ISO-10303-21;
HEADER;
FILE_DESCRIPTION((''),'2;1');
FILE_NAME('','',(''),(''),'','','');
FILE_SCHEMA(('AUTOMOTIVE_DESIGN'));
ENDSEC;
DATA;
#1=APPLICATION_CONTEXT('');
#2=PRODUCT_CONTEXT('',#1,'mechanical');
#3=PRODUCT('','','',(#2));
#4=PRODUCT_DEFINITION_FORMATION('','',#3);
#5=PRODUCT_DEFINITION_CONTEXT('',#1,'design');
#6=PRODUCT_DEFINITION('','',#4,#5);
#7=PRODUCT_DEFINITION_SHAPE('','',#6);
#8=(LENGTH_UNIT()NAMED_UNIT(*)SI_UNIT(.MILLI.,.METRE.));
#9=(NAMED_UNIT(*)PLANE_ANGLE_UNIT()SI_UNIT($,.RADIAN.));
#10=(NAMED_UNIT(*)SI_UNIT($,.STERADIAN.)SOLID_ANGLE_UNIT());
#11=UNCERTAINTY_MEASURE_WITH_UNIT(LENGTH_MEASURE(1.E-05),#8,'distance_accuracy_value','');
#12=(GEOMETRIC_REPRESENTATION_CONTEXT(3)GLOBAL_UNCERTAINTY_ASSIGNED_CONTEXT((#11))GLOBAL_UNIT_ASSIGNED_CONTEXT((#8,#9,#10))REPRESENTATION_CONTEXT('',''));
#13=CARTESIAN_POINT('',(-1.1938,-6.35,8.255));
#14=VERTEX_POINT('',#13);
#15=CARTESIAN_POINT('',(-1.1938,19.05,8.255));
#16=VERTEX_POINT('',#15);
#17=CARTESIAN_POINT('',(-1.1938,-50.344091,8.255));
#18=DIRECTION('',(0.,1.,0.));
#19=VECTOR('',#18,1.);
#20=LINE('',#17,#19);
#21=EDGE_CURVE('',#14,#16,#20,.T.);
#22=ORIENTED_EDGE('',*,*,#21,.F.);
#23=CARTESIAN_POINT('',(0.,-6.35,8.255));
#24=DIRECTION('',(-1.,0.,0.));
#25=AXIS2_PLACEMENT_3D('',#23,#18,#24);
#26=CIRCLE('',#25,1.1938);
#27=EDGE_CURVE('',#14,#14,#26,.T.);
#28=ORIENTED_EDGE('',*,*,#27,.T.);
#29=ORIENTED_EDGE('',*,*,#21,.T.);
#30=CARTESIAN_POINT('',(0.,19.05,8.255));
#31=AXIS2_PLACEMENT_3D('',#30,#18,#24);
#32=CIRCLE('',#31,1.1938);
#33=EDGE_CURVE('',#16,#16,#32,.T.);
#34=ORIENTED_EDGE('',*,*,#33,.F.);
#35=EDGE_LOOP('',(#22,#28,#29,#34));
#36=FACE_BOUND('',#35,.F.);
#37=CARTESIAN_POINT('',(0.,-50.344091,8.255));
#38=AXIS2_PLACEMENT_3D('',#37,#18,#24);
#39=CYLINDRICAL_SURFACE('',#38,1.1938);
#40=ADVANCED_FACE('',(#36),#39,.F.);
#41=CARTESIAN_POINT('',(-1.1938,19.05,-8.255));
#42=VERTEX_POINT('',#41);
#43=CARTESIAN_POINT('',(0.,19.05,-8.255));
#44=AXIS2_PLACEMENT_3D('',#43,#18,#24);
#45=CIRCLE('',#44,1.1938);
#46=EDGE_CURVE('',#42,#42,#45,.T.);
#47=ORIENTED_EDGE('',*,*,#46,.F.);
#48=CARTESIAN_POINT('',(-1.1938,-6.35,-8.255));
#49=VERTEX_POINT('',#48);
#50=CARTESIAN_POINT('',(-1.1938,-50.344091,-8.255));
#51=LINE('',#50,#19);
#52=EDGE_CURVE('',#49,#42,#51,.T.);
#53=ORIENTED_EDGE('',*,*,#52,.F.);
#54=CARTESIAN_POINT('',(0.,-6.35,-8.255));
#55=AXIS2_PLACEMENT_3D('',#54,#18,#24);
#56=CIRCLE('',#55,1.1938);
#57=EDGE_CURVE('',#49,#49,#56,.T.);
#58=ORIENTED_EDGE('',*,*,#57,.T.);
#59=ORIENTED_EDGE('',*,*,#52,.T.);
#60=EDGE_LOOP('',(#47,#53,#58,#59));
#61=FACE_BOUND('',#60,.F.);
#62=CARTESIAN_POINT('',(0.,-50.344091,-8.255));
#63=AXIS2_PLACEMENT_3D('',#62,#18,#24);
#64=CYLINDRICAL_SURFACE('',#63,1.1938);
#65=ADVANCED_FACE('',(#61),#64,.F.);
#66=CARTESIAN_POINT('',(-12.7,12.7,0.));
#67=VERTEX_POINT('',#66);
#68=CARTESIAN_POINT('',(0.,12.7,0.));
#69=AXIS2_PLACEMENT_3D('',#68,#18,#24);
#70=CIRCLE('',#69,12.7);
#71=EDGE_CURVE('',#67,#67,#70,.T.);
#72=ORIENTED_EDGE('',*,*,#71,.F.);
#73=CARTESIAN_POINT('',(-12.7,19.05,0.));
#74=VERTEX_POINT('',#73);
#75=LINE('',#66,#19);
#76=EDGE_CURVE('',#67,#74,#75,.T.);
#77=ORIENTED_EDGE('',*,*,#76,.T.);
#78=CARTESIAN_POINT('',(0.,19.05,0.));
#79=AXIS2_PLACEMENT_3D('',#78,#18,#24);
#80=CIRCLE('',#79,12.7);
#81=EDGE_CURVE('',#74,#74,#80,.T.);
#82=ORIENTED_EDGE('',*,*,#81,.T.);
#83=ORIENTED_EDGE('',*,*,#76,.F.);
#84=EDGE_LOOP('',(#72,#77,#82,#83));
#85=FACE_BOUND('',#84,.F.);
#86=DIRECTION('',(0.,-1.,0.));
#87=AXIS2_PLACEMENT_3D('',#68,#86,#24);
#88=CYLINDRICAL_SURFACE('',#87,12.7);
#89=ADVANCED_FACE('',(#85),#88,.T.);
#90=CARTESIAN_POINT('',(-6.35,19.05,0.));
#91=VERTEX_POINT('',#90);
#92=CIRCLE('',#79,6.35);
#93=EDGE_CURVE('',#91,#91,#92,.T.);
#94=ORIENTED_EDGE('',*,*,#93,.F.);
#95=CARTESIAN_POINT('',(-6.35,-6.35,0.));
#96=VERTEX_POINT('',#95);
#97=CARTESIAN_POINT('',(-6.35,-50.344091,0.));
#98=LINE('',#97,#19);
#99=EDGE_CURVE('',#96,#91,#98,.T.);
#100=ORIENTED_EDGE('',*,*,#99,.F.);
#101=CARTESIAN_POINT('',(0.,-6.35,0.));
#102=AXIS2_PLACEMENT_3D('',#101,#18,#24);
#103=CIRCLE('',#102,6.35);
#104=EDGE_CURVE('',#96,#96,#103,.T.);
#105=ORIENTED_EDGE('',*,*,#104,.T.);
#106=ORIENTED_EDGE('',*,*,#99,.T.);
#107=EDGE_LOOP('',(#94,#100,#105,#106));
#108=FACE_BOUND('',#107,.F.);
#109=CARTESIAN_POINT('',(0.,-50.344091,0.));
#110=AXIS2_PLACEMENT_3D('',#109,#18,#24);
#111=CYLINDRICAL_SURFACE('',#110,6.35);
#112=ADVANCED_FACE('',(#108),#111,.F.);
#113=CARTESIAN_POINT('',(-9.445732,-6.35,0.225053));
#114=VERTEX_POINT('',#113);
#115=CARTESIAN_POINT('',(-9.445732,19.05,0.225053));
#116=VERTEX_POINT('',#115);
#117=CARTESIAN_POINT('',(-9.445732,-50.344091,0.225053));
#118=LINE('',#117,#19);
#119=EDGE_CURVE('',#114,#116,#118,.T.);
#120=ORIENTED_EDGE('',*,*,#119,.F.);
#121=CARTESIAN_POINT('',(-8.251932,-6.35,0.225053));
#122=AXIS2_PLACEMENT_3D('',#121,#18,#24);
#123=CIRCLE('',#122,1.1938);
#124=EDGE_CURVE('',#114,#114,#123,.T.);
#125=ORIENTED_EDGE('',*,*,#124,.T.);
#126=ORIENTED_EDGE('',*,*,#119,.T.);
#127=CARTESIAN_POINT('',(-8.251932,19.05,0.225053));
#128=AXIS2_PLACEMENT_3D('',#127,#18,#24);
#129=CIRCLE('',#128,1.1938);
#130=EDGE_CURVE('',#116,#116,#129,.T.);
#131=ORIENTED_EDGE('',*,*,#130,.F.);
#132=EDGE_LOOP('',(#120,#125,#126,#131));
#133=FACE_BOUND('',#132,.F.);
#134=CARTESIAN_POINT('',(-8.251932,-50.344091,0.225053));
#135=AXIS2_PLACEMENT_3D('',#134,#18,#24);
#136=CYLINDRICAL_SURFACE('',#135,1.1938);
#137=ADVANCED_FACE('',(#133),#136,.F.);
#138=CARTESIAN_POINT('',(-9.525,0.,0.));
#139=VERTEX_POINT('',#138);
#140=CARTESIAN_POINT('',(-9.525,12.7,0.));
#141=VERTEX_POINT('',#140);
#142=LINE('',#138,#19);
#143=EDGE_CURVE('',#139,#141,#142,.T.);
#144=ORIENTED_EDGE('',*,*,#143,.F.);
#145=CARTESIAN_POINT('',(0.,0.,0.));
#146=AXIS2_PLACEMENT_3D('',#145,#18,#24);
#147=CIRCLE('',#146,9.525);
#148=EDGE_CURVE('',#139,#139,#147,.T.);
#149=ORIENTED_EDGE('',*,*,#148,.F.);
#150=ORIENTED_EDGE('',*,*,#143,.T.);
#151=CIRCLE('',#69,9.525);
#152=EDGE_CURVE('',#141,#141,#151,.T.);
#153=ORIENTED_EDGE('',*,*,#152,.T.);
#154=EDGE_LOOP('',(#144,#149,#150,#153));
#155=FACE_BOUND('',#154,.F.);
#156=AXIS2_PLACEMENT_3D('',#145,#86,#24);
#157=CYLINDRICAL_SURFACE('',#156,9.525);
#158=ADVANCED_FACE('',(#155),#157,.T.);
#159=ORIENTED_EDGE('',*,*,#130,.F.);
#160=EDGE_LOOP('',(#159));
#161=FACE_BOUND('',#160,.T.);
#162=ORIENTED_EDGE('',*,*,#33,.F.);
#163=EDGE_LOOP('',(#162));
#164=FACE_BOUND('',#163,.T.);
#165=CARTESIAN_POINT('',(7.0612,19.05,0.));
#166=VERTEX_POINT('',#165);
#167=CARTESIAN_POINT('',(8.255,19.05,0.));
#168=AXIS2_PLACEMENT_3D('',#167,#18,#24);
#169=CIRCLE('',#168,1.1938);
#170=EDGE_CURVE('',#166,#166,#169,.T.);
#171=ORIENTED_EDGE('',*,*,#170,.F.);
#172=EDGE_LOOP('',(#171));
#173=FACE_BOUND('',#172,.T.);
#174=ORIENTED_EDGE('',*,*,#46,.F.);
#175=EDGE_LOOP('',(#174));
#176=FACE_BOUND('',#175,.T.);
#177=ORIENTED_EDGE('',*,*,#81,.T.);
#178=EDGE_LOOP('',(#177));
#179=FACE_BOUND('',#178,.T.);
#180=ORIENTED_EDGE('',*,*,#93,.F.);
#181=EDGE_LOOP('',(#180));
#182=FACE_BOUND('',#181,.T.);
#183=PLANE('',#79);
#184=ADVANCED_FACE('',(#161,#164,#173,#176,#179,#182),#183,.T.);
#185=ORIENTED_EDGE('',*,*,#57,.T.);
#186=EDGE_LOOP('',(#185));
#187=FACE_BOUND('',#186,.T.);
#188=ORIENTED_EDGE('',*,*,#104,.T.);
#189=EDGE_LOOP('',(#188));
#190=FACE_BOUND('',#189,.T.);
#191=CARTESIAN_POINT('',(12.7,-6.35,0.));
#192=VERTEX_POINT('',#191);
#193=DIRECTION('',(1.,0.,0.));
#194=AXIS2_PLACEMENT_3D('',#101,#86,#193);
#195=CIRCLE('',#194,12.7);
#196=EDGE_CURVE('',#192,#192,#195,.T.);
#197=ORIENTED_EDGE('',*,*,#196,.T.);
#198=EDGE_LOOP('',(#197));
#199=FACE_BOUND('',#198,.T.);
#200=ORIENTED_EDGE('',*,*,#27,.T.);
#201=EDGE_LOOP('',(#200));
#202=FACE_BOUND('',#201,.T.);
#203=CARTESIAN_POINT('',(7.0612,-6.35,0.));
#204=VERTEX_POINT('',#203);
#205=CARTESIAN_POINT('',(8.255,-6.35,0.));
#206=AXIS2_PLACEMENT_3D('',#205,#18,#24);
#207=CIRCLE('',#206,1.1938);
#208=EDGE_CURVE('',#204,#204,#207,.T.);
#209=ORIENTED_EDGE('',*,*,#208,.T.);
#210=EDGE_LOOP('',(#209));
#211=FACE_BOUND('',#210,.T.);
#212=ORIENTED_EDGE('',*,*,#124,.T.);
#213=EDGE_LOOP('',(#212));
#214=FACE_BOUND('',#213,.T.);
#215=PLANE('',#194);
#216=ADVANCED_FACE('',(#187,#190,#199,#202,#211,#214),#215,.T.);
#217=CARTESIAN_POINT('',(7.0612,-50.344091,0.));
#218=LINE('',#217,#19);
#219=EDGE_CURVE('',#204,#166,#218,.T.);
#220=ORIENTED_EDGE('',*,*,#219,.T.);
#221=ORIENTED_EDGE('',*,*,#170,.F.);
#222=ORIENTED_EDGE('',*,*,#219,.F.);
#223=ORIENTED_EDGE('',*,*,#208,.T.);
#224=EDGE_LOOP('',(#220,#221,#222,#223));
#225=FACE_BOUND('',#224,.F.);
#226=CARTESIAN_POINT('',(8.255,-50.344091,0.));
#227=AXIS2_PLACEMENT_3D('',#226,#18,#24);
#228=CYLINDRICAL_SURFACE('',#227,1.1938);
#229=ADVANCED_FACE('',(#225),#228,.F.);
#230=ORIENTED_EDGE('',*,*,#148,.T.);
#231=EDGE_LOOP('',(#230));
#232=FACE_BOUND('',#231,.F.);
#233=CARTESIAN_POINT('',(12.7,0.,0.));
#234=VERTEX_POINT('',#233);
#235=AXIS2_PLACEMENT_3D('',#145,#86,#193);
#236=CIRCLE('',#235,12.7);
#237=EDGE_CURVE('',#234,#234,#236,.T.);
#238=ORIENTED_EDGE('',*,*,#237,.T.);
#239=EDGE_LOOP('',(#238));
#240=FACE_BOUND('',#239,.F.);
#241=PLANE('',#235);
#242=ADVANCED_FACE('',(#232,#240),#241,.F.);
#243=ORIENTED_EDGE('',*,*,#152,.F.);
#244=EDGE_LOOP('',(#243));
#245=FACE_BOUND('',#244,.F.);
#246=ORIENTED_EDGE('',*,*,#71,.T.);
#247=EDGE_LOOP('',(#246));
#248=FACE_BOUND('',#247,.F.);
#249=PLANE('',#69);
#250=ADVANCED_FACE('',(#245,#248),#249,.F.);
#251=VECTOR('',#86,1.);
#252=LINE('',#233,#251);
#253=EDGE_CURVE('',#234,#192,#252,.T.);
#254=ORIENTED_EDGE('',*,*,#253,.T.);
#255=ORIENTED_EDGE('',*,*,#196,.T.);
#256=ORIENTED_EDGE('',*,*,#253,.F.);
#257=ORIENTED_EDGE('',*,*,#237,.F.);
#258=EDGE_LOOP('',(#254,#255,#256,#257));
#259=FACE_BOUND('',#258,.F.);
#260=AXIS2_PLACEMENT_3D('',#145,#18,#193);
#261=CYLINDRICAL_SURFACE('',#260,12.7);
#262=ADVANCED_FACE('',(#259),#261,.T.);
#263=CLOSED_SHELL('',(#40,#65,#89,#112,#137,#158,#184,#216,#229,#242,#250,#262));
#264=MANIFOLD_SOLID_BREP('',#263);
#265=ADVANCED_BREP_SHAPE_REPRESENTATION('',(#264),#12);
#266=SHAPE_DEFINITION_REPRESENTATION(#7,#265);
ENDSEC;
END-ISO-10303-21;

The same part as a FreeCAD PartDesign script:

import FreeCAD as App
import Part
import Sketcher
from FreeCAD import Vector
Q = App.Units.Quantity

doc = App.newDocument("Part")
body = doc.addObject("PartDesign::Body", "Body")

# Sketch on XZ plane
sketch1 = body.newObject("Sketcher::SketchObject", "Sketch")
sketch1.AttachmentSupport = (doc.getObject("XZ_Plane"), [""])
sketch1.MapMode = "FlatFace"
sketch1.addGeometry(Part.Circle(Vector(0, 0, 0), Vector(0, 0, 1), 13), False)
sketch1.addConstraint([
    Sketcher.Constraint("Coincident", 0, 3, -1, 1),
    Sketcher.Constraint("Diameter", 0, Q("1 in")),
])
pad1 = body.newObject("PartDesign::Pad", "Pad")
pad1.Profile = sketch1
pad1.Length = Q("0.25 in")

# Sketch on XZ plane
sketch2 = body.newObject("Sketcher::SketchObject", "Sketch001")
sketch2.AttachmentSupport = (doc.getObject("XZ_Plane"), [""])
sketch2.MapMode = "FlatFace"
sketch2.addGeometry(Part.Circle(Vector(0, 0, 0), Vector(0, 0, 1), 10), False)
sketch2.addConstraint([
    Sketcher.Constraint("Coincident", 0, 3, -1, 1),
    Sketcher.Constraint("Diameter", 0, Q("0.75 in")),
])
pad2 = body.newObject("PartDesign::Pad", "Pad001")
pad2.Profile = sketch2
pad2.Length = Q("0.5 in")
pad2.Reversed = True

# Sketch on XZ plane
sketch3 = body.newObject("Sketcher::SketchObject", "Sketch002")
sketch3.AttachmentSupport = (doc.getObject("XZ_Plane"), [""])
sketch3.MapMode = "FlatFace"
sketch3.AttachmentOffset = App.Placement(Vector(0, 0, -0.5 * 25.4), App.Rotation())
sketch3.addGeometry(Part.Circle(Vector(0, 0, 0), Vector(0, 0, 1), 13), False)
sketch3.addConstraint([
    Sketcher.Constraint("Coincident", 0, 3, -1, 1),
    Sketcher.Constraint("Diameter", 0, Q("1 in")),
])
pad3 = body.newObject("PartDesign::Pad", "Pad002")
pad3.Profile = sketch3
pad3.Length = Q("0.25 in")
pad3.Reversed = True

# Sketch on XZ plane
sketch4 = body.newObject("Sketcher::SketchObject", "Sketch003")
sketch4.AttachmentSupport = (doc.getObject("XZ_Plane"), [""])
sketch4.MapMode = "FlatFace"
sketch4.AttachmentOffset = App.Placement(Vector(0, 0, 0.25 * 25.4), App.Rotation())
sketch4.addGeometry(Part.Circle(Vector(0, 0, 0), Vector(0, 0, 1), 6), False)
sketch4.addConstraint([
    Sketcher.Constraint("Coincident", 0, 3, -1, 1),
    Sketcher.Constraint("Diameter", 0, Q("0.5 in")),
])
doc.recompute()
hole = body.newObject("PartDesign::Hole", "Hole")
hole.Profile = sketch4
hole.ThreadType = "None"
hole.Diameter = Q("0.5 in")
hole.DepthType = "ThroughAll"

# Sketch on XZ plane
sketch5 = body.newObject("Sketcher::SketchObject", "Sketch004")
sketch5.AttachmentSupport = (doc.getObject("XZ_Plane"), [""])
sketch5.MapMode = "FlatFace"
sketch5.AttachmentOffset = App.Placement(Vector(0, 0, 0.25 * 25.4), App.Rotation())
sketch5.addGeometry([
    Part.Circle(Vector(0, 8.3, 0), Vector(0, 0, 1), 1.2),
    Part.Circle(Vector(-8.3, 0.2, 0), Vector(0, 0, 1), 1.2),
    Part.Circle(Vector(0, -8.3, 0), Vector(0, 0, 1), 1.2),
    Part.Circle(Vector(8.3, 0, 0), Vector(0, 0, 1), 1.2),
], False)
sketch5.addConstraint([
    Sketcher.Constraint("Equal", 0, 1),
    Sketcher.Constraint("Equal", 1, 2),
    Sketcher.Constraint("Equal", 2, 3),
    Sketcher.Constraint("Symmetric", 0, 3, 2, 3, -1, 1),
    Sketcher.Constraint("PointOnObject", 0, 3, -2),
    Sketcher.Constraint("PointOnObject", 3, 3, -1),
    Sketcher.Constraint("Diameter", 0, Q("0.094 in")),
    Sketcher.Constraint("DistanceY", 2, 3, 0, 3, Q("0.65 in")),
    Sketcher.Constraint("DistanceX", -1, 1, 3, 3, Q("0.325 in")),
    Sketcher.Constraint("DistanceX", 1, 3, -1, 1, Q("8.251932 mm")),
    Sketcher.Constraint("DistanceY", -1, 1, 1, 3, Q("0.225053 mm")),
])
doc.recompute()
hole2 = body.newObject("PartDesign::Hole", "Hole001")
hole2.Profile = sketch5
hole2.ThreadType = "None"
hole2.Diameter = Q("0.094 in")
hole2.DepthType = "ThroughAll"

doc.recompute()
